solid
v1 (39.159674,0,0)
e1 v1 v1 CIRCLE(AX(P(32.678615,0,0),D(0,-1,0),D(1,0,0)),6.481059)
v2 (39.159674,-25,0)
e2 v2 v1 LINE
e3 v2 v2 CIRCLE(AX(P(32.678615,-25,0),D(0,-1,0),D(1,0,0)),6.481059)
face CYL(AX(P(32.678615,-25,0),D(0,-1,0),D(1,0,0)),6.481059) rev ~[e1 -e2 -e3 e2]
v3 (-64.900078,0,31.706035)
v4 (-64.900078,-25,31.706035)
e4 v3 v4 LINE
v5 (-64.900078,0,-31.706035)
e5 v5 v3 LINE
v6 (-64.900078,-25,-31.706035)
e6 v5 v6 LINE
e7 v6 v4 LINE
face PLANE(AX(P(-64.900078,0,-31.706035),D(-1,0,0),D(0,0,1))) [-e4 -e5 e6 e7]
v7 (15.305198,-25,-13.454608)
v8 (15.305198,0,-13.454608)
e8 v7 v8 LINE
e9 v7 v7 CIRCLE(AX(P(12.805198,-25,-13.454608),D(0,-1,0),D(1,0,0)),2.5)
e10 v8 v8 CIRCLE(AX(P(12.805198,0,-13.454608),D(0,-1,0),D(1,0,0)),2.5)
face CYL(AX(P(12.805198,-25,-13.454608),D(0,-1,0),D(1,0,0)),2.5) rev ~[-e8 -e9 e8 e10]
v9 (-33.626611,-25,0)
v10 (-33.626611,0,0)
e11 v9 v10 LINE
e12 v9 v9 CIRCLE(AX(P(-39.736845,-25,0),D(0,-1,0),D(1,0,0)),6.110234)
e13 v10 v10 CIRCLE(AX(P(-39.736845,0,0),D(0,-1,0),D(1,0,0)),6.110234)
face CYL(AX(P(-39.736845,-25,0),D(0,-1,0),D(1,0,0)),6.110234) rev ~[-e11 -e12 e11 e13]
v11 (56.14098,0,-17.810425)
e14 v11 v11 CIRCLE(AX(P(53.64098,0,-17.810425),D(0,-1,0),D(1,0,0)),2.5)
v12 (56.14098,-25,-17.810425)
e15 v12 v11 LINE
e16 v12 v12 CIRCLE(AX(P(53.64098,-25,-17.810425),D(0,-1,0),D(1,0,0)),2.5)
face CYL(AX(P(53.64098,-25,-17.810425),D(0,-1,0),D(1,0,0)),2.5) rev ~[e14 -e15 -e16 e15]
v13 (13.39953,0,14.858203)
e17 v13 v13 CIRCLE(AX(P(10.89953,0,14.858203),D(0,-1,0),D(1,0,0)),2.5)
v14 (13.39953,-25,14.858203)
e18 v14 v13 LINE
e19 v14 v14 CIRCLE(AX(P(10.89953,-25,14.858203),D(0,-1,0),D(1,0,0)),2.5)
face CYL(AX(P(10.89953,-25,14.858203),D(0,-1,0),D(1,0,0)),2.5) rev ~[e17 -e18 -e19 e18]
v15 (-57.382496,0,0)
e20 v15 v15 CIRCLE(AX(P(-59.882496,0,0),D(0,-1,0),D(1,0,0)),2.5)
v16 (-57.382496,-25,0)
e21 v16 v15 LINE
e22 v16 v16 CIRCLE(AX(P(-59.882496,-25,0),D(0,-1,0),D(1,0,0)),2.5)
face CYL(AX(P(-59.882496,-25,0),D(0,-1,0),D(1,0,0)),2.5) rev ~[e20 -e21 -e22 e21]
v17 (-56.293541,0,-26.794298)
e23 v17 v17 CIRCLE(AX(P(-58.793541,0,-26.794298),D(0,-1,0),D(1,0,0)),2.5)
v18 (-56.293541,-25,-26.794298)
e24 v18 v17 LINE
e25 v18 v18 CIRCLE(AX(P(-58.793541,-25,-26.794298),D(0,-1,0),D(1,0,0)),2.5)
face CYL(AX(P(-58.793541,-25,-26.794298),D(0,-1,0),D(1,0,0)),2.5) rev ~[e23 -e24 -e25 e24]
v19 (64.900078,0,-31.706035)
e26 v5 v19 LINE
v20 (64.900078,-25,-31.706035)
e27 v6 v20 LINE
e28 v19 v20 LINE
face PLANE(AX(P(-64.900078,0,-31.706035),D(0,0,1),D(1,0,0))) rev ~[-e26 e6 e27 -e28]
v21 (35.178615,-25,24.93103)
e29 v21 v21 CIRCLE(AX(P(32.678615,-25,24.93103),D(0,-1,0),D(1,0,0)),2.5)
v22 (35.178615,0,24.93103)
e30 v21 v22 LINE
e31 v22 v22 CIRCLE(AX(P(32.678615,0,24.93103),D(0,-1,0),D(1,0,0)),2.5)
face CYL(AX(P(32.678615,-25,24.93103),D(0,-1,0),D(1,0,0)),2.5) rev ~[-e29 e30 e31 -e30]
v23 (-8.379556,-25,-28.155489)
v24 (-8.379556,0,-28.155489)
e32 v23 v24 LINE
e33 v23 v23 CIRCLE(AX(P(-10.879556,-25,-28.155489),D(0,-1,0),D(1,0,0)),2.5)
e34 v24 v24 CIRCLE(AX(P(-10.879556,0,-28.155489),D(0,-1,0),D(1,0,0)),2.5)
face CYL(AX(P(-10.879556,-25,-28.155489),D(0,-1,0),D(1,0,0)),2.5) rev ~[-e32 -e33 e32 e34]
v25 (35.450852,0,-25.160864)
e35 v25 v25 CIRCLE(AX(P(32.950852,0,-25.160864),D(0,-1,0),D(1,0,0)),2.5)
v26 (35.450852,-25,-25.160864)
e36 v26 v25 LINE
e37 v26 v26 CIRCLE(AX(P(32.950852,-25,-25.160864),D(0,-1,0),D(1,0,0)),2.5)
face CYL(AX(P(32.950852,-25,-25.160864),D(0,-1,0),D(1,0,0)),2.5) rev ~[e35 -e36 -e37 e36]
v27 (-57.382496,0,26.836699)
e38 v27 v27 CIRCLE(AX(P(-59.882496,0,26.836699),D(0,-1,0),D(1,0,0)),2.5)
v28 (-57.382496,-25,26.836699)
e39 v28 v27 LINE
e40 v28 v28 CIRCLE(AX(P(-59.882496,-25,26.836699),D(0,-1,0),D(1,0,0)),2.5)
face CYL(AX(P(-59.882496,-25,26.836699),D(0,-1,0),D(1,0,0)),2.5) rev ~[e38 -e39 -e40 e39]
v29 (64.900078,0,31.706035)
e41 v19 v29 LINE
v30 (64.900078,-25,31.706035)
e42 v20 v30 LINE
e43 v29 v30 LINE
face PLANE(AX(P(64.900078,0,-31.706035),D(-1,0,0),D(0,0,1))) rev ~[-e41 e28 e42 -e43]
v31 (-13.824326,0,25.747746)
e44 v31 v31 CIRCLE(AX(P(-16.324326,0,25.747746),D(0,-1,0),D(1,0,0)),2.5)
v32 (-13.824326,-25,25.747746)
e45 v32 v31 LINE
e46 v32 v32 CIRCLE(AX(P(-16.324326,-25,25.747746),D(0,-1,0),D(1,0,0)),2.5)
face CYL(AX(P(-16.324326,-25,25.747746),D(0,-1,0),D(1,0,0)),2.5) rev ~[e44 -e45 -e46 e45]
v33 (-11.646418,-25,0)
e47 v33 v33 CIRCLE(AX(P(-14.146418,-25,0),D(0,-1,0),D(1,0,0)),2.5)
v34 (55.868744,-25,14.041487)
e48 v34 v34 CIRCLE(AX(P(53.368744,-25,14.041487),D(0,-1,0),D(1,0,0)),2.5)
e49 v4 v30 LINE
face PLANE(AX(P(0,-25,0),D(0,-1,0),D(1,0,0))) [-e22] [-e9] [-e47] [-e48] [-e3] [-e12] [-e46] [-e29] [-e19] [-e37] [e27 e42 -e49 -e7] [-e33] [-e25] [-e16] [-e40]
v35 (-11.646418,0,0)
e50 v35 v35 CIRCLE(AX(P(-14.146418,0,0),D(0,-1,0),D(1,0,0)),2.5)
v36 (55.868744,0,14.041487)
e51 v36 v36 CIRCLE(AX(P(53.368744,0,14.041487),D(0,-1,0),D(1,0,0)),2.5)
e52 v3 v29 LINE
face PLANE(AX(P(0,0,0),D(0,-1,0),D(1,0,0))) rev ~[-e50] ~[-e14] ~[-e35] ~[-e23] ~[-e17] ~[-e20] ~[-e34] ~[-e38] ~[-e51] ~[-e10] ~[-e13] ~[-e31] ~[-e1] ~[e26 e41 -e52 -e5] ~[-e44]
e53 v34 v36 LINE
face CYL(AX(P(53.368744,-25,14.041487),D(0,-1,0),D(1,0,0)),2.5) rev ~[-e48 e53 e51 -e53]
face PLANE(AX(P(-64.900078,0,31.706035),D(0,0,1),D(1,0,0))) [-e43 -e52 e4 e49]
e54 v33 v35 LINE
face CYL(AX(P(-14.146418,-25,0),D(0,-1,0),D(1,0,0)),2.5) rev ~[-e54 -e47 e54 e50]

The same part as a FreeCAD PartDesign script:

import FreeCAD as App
import Part
import Sketcher
from FreeCAD import Vector
Q = App.Units.Quantity


def add_polygon(sketch, points):
    """Adds a closed chain of lines whose ends are joined by coincident constraints."""
    first, n = sketch.GeometryCount, len(points)
    for a, b in zip(points, points[1:] + points[:1]):
        sketch.addGeometry(Part.LineSegment(App.Vector(*a, 0), App.Vector(*b, 0)), False)
    for i in range(n):
        sketch.addConstraint(Sketcher.Constraint("Coincident", first + i, 2, first + (i + 1) % n, 1))

doc = App.newDocument("Part")
body = doc.addObject("PartDesign::Body", "Body")

# Sketch on XZ plane
sketch1 = body.newObject("Sketcher::SketchObject", "Sketch")
sketch1.AttachmentSupport = (doc.getObject("XZ_Plane"), [""])
sketch1.MapMode = "FlatFace"
add_polygon(sketch1, [(-64.900078, 31.706035), (-64.900078, -31.706035), (64.900078, -31.706035), (64.900078, 31.706035)])  # lines 0-3
sketch1.addConstraint(Sketcher.Constraint("Vertical", 0))
sketch1.addConstraint(Sketcher.Constraint("Horizontal", 1))
sketch1.addConstraint(Sketcher.Constraint("Vertical", 2))
sketch1.addConstraint(Sketcher.Constraint("Horizontal", 3))
sketch1.addConstraint(Sketcher.Constraint("Symmetric", 0, 2, 2, 2, -1, 1))
sketch1.addConstraint(Sketcher.Constraint("DistanceY", 0, 2, 0, 1, Q("63.41207 mm")))
sketch1.addConstraint(Sketcher.Constraint("DistanceX", 1, 1, 1, 2, Q("129.800156 mm")))
pad1 = body.newObject("PartDesign::Pad", "Pad")
pad1.Profile = sketch1
pad1.Length = 25

# Sketch on XZ plane
sketch2 = body.newObject("Sketcher::SketchObject", "Sketch001")
sketch2.AttachmentSupport = (doc.getObject("XZ_Plane"), [""])
sketch2.MapMode = "FlatFace"
sketch2.AttachmentOffset = App.Placement(Vector(0, 0, 25), App.Rotation())
sketch2.addGeometry(Part.Circle(Vector(-59.882496, 26.836699, 0), Vector(0, 0, 1), 2.5), False)
sketch2.addGeometry(Part.Circle(Vector(-59.882496, 0, 0), Vector(0, 0, 1), 2.5), False)
sketch2.addGeometry(Part.Circle(Vector(-58.793541, -26.794298, 0), Vector(0, 0, 1), 2.5), False)
sketch2.addGeometry(Part.Circle(Vector(-39.736845, 0, 0), Vector(0, 0, 1), 6.110234), False)
sketch2.addGeometry(Part.Circle(Vector(-16.324326, 25.747746, 0), Vector(0, 0, 1), 2.5), False)
sketch2.addGeometry(Part.Circle(Vector(-14.146418, 0, 0), Vector(0, 0, 1), 2.5), False)
sketch2.addGeometry(Part.Circle(Vector(-10.879556, -28.155489, 0), Vector(0, 0, 1), 2.5), False)
sketch2.addGeometry(Part.Circle(Vector(10.89953, 14.858203, 0), Vector(0, 0, 1), 2.5), False)
sketch2.addGeometry(Part.Circle(Vector(12.805198, -13.454608, 0), Vector(0, 0, 1), 2.5), False)
sketch2.addGeometry(Part.Circle(Vector(32.678615, 0, 0), Vector(0, 0, 1), 6.481059), False)
sketch2.addGeometry(Part.Circle(Vector(32.678615, 24.93103, 0), Vector(0, 0, 1), 2.5), False)
sketch2.addGeometry(Part.Circle(Vector(32.950852, -25.160864, 0), Vector(0, 0, 1), 2.5), False)
sketch2.addGeometry(Part.Circle(Vector(53.368744, 14.041487, 0), Vector(0, 0, 1), 2.5), False)
sketch2.addGeometry(Part.Circle(Vector(53.64098, -17.810425, 0), Vector(0, 0, 1), 2.5), False)
sketch2.addConstraint(Sketcher.Constraint("Equal", 0, 1))
sketch2.addConstraint(Sketcher.Constraint("Equal", 1, 2))
sketch2.addConstraint(Sketcher.Constraint("Equal", 2, 4))
sketch2.addConstraint(Sketcher.Constraint("Equal", 4, 5))
sketch2.addConstraint(Sketcher.Constraint("Equal", 5, 6))
sketch2.addConstraint(Sketcher.Constraint("Equal", 6, 7))
sketch2.addConstraint(Sketcher.Constraint("Equal", 7, 8))
sketch2.addConstraint(Sketcher.Constraint("Equal", 8, 10))
sketch2.addConstraint(Sketcher.Constraint("Equal", 10, 11))
sketch2.addConstraint(Sketcher.Constraint("Equal", 11, 12))
sketch2.addConstraint(Sketcher.Constraint("Equal", 12, 13))
sketch2.addConstraint(Sketcher.Constraint("PointOnObject", 1, 3, -1))
sketch2.addConstraint(Sketcher.Constraint("PointOnObject", 3, 3, -1))
sketch2.addConstraint(Sketcher.Constraint("PointOnObject", 5, 3, -1))
sketch2.addConstraint(Sketcher.Constraint("PointOnObject", 9, 3, -1))
sketch2.addConstraint(Sketcher.Constraint("Vertical", 0, 3, 1, 3))
sketch2.addConstraint(Sketcher.Constraint("Vertical", 9, 3, 10, 3))
sketch2.addConstraint(Sketcher.Constraint("Diameter", 0, Q("5 mm")))
sketch2.addConstraint(Sketcher.Constraint("Diameter", 3, Q("12.220468 mm")))
sketch2.addConstraint(Sketcher.Constraint("Diameter", 9, Q("12.962118 mm")))
sketch2.addConstraint(Sketcher.Constraint("DistanceY", -1, 1, 0, 3, Q("26.836699 mm")))
sketch2.addConstraint(Sketcher.Constraint("DistanceY", 2, 3, -1, 1, Q("26.794298 mm")))
sketch2.addConstraint(Sketcher.Constraint("DistanceX", -1, 1, 8, 3, Q("12.805198 mm")))
sketch2.addConstraint(Sketcher.Constraint("DistanceX", 2, 3, -1, 1, Q("58.793541 mm")))
sketch2.addConstraint(Sketcher.Constraint("DistanceY", 6, 3, -1, 1, Q("28.155489 mm")))
sketch2.addConstraint(Sketcher.Constraint("DistanceX", -1, 1, 7, 3, Q("10.89953 mm")))
sketch2.addConstraint(Sketcher.Constraint("DistanceY", -1, 1, 10, 3, Q("24.93103 mm")))
sketch2.addConstraint(Sketcher.Constraint("DistanceX", -1, 1, 11, 3, Q("32.950852 mm")))
sketch2.addConstraint(Sketcher.Constraint("DistanceX", -1, 1, 13, 3, Q("53.64098 mm")))
sketch2.addConstraint(Sketcher.Constraint("DistanceX", 1, 3, 3, 3, Q("20.145651 mm")))
sketch2.addConstraint(Sketcher.Constraint("DistanceX", 3, 3, 4, 3, Q("23.412519 mm")))
sketch2.addConstraint(Sketcher.Constraint("DistanceX", 1, 3, 5, 3, Q("45.736078 mm")))
sketch2.addConstraint(Sketcher.Constraint("DistanceX", 3, 3, 6, 3, Q("28.857289 mm")))
sketch2.addConstraint(Sketcher.Constraint("DistanceX", 5, 3, 7, 3, Q("25.045948 mm")))
sketch2.addConstraint(Sketcher.Constraint("DistanceY", 6, 3, 8, 3, Q("14.700881 mm")))
sketch2.addConstraint(Sketcher.Constraint("DistanceY", 8, 3, 7, 3, Q("28.312811 mm")))
sketch2.addConstraint(Sketcher.Constraint("DistanceX", 6, 3, 9, 3, Q("43.558171 mm")))
sketch2.addConstraint(Sketcher.Constraint("DistanceX", 10, 3, 12, 3, Q("20.690129 mm")))
sketch2.addConstraint(Sketcher.Constraint("DistanceY", 11, 3, 12, 3, Q("39.202351 mm")))
sketch2.addConstraint(Sketcher.Constraint("DistanceY", 11, 3, 13, 3, Q("7.350439 mm")))
sketch2.addConstraint(Sketcher.Constraint("DistanceY", -1, 1, 4, 3, Q("25.747746 mm")))
sketch2.addConstraint(Sketcher.Constraint("DistanceY", 11, 3, -1, 1, Q("25.160864 mm")))
pocket1 = body.newObject("PartDesign::Pocket", "Pocket")
pocket1.Profile = sketch2
pocket1.Length = 25

doc.recompute()
